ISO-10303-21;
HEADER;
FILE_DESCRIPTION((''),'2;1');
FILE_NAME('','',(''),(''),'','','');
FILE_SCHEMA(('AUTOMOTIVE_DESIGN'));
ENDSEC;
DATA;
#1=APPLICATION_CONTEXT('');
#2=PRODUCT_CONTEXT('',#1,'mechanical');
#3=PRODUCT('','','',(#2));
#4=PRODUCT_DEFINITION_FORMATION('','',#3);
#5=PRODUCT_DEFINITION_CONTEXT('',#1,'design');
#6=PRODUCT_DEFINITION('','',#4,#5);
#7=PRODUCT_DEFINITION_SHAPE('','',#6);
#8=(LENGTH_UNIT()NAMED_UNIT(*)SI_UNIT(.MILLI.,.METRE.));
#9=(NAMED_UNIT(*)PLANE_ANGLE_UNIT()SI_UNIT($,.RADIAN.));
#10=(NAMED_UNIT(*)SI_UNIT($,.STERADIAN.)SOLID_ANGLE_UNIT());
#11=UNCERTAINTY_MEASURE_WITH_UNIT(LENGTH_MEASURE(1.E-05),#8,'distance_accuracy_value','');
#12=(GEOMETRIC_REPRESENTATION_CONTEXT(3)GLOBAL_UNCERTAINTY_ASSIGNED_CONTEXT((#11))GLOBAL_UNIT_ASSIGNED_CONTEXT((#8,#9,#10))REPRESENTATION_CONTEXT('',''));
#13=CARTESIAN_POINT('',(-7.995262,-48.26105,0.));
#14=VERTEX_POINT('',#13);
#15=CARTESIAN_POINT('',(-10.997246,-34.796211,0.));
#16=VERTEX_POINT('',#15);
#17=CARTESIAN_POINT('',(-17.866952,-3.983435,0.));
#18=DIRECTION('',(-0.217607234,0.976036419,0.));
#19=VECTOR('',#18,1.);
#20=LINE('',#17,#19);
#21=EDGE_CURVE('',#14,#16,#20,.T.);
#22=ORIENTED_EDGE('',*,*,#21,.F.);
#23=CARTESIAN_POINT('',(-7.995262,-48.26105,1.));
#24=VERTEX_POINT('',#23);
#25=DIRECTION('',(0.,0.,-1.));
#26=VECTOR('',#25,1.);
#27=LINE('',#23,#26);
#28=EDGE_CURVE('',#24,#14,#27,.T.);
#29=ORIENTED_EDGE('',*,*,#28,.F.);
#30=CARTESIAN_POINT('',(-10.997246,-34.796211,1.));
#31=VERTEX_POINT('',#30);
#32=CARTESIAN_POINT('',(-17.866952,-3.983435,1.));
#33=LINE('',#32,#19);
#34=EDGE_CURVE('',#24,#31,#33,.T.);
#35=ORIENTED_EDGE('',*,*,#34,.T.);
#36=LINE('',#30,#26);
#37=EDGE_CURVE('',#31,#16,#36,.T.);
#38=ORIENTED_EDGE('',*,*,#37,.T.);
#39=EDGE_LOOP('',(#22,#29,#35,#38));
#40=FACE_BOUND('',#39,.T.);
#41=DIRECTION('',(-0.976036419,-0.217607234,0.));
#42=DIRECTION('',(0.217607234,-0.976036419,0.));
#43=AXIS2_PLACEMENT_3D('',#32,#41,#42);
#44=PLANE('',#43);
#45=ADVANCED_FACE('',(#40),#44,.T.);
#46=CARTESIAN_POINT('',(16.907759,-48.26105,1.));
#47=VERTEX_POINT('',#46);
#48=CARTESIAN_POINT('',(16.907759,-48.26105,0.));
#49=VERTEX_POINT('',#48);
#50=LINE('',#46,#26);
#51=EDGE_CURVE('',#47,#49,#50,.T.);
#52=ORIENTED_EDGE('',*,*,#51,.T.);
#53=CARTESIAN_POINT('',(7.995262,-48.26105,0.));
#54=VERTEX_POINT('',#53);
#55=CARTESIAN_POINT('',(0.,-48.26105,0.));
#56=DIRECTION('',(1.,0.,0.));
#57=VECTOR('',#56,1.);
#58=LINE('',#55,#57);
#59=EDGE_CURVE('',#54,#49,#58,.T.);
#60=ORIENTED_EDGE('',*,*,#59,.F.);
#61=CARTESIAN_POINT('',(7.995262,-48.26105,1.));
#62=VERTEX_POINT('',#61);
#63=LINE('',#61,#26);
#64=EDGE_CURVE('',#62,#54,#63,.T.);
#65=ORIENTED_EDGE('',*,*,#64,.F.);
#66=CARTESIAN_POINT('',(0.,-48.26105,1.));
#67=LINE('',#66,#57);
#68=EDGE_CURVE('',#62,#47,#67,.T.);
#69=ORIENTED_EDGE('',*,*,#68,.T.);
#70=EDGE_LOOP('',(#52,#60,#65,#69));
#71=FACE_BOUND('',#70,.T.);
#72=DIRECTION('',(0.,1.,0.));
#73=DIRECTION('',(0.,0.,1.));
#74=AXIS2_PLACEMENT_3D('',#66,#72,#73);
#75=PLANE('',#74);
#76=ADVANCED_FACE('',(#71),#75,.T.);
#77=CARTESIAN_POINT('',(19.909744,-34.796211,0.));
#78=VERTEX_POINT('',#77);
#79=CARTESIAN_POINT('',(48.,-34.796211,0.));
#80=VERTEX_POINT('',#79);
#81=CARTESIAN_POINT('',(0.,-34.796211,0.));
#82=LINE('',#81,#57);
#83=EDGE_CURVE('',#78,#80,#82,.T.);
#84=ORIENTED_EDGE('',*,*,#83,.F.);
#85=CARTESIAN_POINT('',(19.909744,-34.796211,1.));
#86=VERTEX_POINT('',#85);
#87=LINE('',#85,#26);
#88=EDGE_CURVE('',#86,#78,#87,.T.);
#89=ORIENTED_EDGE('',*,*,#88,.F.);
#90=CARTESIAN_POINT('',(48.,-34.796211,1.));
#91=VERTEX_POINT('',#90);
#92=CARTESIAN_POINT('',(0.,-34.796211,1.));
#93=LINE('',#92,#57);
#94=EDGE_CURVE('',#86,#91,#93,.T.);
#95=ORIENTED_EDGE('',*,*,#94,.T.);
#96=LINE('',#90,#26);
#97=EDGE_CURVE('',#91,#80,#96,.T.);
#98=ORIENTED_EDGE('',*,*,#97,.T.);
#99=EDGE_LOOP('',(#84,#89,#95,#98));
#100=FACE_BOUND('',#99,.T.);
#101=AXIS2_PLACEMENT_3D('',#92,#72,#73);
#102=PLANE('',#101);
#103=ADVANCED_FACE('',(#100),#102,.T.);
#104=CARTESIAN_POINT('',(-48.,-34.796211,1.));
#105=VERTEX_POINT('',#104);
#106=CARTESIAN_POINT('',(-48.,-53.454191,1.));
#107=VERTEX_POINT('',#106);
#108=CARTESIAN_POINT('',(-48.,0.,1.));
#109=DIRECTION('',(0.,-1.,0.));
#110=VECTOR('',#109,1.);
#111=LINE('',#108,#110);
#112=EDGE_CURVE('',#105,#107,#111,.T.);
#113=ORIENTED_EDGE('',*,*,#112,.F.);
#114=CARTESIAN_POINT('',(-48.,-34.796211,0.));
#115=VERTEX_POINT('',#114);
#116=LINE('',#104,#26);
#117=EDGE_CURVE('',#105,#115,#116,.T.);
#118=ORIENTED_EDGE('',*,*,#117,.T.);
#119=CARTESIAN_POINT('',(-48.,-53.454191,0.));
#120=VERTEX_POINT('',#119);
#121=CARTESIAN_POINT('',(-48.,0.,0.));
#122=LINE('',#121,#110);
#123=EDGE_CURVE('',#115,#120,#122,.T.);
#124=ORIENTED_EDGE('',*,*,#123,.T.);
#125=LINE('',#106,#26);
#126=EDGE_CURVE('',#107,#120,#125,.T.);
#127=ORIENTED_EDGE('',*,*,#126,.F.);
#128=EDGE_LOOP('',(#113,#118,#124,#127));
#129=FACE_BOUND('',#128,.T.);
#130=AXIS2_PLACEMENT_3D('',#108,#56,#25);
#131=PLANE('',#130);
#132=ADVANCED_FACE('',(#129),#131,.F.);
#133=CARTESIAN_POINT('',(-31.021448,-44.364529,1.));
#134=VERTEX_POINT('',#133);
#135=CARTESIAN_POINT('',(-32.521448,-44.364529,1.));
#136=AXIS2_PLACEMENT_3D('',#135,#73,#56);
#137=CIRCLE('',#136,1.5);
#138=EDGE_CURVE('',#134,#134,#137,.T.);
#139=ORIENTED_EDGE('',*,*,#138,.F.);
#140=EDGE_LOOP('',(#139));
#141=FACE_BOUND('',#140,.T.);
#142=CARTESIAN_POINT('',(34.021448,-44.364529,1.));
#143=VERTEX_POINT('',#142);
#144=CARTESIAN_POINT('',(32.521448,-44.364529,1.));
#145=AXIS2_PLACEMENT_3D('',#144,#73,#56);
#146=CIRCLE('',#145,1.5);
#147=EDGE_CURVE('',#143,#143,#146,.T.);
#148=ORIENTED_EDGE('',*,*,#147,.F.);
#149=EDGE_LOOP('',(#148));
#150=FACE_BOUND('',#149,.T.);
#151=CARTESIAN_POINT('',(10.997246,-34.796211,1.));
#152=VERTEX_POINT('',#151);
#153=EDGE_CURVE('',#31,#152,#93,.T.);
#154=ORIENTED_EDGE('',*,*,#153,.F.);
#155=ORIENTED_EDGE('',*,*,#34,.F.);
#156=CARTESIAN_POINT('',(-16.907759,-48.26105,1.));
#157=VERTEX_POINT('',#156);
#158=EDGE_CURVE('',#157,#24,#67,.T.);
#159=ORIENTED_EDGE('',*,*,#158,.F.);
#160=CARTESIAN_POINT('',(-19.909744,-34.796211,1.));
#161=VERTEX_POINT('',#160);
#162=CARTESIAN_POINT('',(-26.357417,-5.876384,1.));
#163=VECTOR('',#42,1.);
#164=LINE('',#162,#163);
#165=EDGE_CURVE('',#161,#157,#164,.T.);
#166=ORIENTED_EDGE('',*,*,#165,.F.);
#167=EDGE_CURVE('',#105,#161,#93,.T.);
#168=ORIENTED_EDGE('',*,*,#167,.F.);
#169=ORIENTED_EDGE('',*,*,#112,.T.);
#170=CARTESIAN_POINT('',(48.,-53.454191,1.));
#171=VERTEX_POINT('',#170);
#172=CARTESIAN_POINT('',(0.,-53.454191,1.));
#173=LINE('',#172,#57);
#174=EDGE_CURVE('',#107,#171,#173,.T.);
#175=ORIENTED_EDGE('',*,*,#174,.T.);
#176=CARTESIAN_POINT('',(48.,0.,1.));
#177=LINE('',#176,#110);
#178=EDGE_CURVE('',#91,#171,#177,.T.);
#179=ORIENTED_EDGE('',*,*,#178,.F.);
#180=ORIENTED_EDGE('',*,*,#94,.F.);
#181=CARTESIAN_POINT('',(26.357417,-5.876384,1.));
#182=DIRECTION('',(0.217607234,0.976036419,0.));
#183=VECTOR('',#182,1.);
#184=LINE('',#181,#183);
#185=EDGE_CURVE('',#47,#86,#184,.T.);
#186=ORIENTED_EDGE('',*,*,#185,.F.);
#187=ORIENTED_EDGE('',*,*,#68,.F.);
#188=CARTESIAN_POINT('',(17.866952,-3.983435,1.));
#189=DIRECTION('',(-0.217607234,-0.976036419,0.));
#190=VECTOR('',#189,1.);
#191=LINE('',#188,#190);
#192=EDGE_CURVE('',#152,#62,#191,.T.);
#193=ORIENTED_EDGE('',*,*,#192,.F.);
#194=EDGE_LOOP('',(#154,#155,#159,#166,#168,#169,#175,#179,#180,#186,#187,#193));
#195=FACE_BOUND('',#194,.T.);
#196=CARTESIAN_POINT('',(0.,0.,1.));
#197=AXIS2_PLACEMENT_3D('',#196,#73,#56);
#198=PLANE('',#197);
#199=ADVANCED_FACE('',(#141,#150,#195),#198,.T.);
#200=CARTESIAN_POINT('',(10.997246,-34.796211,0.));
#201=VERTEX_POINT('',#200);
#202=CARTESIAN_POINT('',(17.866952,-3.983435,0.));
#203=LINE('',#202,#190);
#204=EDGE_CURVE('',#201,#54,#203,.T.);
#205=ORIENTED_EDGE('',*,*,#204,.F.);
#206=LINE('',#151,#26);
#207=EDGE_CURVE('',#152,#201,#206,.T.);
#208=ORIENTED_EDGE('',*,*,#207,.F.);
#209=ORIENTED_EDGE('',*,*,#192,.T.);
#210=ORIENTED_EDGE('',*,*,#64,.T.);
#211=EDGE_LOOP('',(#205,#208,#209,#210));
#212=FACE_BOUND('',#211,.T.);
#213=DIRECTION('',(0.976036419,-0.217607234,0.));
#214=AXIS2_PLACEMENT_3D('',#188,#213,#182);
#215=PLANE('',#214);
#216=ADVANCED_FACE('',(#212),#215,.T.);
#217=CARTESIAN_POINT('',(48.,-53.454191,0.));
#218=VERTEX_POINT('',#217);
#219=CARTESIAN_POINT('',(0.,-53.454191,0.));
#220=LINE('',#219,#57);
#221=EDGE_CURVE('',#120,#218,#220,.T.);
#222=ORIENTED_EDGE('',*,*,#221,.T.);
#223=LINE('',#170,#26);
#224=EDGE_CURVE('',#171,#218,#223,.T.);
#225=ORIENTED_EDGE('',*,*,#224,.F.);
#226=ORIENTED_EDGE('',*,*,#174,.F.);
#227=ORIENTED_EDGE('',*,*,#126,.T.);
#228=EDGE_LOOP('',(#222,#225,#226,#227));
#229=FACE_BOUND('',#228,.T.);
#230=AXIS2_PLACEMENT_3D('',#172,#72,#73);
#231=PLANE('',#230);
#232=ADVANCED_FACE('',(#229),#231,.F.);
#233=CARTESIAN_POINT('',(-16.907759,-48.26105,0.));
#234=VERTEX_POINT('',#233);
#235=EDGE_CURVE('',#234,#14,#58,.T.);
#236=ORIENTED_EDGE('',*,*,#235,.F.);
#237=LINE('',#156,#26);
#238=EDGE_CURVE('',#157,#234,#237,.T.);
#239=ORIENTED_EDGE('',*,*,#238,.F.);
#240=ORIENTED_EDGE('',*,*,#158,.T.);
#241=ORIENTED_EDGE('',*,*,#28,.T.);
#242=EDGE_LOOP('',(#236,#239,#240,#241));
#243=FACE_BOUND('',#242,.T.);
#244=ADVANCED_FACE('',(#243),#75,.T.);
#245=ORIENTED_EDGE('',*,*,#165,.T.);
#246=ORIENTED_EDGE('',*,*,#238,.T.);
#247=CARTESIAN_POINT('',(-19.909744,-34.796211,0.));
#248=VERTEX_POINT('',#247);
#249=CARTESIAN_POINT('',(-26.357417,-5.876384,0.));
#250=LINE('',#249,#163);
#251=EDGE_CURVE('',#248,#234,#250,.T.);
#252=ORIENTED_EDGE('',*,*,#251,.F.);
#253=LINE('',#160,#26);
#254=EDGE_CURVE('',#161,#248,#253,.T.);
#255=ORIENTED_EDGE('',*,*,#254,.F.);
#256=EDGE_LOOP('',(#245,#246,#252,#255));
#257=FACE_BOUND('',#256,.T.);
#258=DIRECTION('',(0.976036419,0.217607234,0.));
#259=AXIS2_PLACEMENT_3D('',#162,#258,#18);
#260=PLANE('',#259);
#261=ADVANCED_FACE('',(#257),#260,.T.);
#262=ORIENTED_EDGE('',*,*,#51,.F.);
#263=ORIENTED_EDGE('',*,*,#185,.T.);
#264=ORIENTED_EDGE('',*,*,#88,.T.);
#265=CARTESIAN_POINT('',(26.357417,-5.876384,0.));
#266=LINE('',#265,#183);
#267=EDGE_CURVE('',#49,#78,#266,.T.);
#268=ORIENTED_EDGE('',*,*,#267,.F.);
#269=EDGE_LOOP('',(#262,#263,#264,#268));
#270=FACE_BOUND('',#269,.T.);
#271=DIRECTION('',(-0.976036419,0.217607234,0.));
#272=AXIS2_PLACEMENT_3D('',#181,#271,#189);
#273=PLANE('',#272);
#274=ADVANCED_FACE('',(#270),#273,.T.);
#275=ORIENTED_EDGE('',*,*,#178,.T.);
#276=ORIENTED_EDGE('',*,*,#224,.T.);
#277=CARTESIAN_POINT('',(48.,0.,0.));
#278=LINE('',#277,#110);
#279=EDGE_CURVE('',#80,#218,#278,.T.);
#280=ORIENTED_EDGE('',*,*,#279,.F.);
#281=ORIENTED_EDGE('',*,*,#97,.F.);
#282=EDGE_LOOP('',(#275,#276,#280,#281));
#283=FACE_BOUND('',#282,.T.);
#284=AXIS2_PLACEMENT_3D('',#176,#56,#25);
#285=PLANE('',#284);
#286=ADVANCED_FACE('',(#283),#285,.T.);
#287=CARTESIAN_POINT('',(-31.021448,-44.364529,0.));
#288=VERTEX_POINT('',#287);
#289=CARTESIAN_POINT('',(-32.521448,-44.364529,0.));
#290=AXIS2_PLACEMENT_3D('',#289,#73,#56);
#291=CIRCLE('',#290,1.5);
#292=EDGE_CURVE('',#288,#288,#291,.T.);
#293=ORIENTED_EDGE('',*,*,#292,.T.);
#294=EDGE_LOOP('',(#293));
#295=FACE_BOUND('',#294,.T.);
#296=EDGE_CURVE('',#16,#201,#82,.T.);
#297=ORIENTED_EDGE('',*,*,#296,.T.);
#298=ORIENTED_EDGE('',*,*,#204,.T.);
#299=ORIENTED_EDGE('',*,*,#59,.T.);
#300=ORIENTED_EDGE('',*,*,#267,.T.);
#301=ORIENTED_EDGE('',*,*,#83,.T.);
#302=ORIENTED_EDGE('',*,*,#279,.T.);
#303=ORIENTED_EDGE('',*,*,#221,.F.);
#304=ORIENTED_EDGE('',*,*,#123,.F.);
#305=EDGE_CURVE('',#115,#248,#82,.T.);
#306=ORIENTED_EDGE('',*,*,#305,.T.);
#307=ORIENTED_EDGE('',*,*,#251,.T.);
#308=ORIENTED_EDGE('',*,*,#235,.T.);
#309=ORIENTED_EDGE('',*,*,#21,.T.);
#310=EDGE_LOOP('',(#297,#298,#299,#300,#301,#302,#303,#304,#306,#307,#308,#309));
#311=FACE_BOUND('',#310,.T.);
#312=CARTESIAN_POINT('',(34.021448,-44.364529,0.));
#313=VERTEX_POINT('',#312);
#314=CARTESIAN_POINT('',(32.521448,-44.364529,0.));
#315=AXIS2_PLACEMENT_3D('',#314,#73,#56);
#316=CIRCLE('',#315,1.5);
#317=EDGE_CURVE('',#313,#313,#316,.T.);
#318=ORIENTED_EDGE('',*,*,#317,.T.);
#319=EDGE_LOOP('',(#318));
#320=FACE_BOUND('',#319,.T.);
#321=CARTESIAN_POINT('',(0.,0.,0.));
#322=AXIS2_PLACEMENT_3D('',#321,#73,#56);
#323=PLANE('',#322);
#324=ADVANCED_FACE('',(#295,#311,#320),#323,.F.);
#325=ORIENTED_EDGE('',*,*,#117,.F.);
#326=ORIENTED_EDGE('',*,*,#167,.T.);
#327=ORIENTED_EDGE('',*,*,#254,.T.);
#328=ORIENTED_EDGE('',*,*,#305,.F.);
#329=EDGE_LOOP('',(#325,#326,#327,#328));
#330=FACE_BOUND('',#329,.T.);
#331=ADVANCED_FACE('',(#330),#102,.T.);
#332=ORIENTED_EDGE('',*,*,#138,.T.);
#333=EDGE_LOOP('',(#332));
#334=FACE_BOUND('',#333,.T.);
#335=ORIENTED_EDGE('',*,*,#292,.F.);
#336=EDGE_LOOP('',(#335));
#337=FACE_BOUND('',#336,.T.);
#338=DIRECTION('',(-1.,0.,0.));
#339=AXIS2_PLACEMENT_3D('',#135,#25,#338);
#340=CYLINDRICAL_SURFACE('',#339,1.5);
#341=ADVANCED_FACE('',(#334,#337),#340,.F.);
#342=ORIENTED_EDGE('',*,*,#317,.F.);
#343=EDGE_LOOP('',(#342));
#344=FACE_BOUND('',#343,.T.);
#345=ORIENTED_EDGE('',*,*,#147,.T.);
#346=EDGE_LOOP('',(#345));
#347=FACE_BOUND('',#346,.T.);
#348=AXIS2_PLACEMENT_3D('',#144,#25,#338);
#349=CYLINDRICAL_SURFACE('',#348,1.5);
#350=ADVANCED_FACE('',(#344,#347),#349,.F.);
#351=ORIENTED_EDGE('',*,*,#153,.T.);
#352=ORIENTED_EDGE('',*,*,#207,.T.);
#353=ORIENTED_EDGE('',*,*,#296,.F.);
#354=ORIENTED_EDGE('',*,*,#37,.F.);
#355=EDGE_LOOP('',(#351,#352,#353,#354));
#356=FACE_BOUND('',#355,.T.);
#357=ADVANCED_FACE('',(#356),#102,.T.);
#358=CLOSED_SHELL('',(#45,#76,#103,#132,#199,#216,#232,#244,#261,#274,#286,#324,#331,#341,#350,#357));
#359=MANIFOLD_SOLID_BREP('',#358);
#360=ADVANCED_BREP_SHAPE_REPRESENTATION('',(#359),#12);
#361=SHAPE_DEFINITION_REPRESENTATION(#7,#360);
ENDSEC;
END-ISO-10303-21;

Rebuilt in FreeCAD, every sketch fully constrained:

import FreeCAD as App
import Part
import Sketcher


def add_polygon(sketch, points):
    """Adds a closed chain of lines whose ends are joined by coincident constraints."""
    first, n = sketch.GeometryCount, len(points)
    for a, b in zip(points, points[1:] + points[:1]):
        sketch.addGeometry(Part.LineSegment(App.Vector(*a, 0), App.Vector(*b, 0)), False)
    for i in range(n):
        sketch.addConstraint(Sketcher.Constraint("Coincident", first + i, 2, first + (i + 1) % n, 1))

doc = App.newDocument("Part")
body = doc.addObject("PartDesign::Body", "Body")

# Sketch on XY plane
sketch1 = body.newObject("Sketcher::SketchObject", "Sketch")
sketch1.AttachmentSupport = (doc.getObject("XY_Plane"), [""])
sketch1.MapMode = "FlatFace"
add_polygon(sketch1, [(48, -34.8), (19.9, -34.8), (16.9, -48.3), (8, -48.3), (11, -34.8), (-11, -34.8), (-8, -48.3), (-16.9, -48.3), (-19.9, -34.8), (-48, -34.8), (-48, -53.5), (48, -53.5)])  # lines 0-11
sketch1.addGeometry(Part.Circle(App.Vector(32.5, -44.4, 0), App.Vector(0, 0, 1), 1.5), False)  # 12
sketch1.addGeometry(Part.Circle(App.Vector(-32.5, -44.4, 0), App.Vector(0, 0, 1), 1.5), False)  # 13
sketch1.addConstraint(Sketcher.Constraint("Horizontal", 0))
sketch1.addConstraint(Sketcher.Constraint("Horizontal", 2))
sketch1.addConstraint(Sketcher.Constraint("Horizontal", 4))
sketch1.addConstraint(Sketcher.Constraint("Horizontal", 6))
sketch1.addConstraint(Sketcher.Constraint("Horizontal", 8))
sketch1.addConstraint(Sketcher.Constraint("Vertical", 9))
sketch1.addConstraint(Sketcher.Constraint("Horizontal", 10))
sketch1.addConstraint(Sketcher.Constraint("Vertical", 11))
sketch1.addConstraint(Sketcher.Constraint("Equal", 12, 13))
sketch1.addConstraint(Sketcher.Constraint("Symmetric", 12, 3, 13, 3, -2))
sketch1.addConstraint(Sketcher.Constraint("Symmetric", 2, 2, 5, 2, -2))
sketch1.addConstraint(Sketcher.Constraint("Symmetric", 0, 2, 7, 2, -2))
sketch1.addConstraint(Sketcher.Constraint("Parallel", 1, 3))
sketch1.addConstraint(Sketcher.Constraint("Parallel", 5, 7))
sketch1.addConstraint(Sketcher.Constraint("Horizontal", 0, 2, 3, 2))
sketch1.addConstraint(Sketcher.Constraint("Equal", 2, 6))
sketch1.addConstraint(Sketcher.Constraint("Equal", 0, 8))
sketch1.addConstraint(Sketcher.Constraint("Diameter", 12, 3.0))
sketch1.addConstraint(Sketcher.Constraint("DistanceX", 10, 1, 10, 2, 96.0))
sketch1.addConstraint(Sketcher.Constraint("DistanceY", 9, 2, 9, 1, 18.65798))
sketch1.addConstraint(Sketcher.Constraint("DistanceX", 3, 2, 12, 3, 21.524202))
sketch1.addConstraint(Sketcher.Constraint("DistanceX", 0, 2, 0, 1, 28.090256))
sketch1.addConstraint(Sketcher.Constraint("DistanceX", 2, 2, 2, 1, 8.912498))
sketch1.addConstraint(Sketcher.Constraint("DistanceY", 12, 3, -1, 1, 44.364529))
sketch1.addConstraint(Sketcher.Constraint("DistanceY", 0, 2, -1, 1, 34.796211))
sketch1.addConstraint(Sketcher.Constraint("DistanceX", -1, 1, 1, 2, 16.907759))
sketch1.addConstraint(Sketcher.Constraint("DistanceY", 1, 2, -1, 1, 48.26105))
pad1 = body.newObject("PartDesign::Pad", "Pad")
pad1.Profile = sketch1
pad1.Length = 1

doc.recompute()
